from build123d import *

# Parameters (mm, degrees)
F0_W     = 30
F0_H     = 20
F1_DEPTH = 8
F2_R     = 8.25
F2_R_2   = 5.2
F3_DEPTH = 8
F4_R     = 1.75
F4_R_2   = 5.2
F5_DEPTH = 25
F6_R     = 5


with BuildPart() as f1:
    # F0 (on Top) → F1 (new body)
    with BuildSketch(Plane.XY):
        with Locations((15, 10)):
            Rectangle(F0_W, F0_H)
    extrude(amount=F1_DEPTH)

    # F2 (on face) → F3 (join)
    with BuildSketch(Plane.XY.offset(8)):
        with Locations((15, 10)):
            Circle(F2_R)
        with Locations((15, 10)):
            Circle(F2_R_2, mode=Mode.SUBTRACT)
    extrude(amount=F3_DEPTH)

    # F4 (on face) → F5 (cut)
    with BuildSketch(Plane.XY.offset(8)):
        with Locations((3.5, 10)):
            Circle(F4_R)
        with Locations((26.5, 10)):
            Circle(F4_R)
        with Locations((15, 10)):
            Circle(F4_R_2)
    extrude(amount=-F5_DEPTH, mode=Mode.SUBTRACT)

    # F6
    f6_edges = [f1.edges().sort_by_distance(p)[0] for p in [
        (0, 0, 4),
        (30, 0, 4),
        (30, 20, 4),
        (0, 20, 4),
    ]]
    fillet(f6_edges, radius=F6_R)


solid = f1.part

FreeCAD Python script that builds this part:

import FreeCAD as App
import Part
import Sketcher


def edges_at(feature, points):
    """Names of the edges that pass closest to the given points."""
    edges = feature.Shape.Edges
    near = lambda p: min(range(len(edges)), key=lambda i: edges[i].distToShape(Part.Vertex(*p))[0])
    return sorted({f"Edge{near(p) + 1}" for p in points})

doc = App.newDocument("Part")
body = doc.addObject("PartDesign::Body", "Body")

sketch1 = body.newObject("Sketcher::SketchObject", "Sketch")
sketch1.AttachmentSupport = (doc.getObject("XY_Plane"), [""])
sketch1.MapMode = "FlatFace"
sketch1.addGeometry(Part.LineSegment(App.Vector(0, 20, 0), App.Vector(0, 0, 0)), False)
sketch1.addGeometry(Part.LineSegment(App.Vector(0, 0, 0), App.Vector(30, 0, 0)), False)
sketch1.addGeometry(Part.LineSegment(App.Vector(30, 0, 0), App.Vector(30, 20, 0)), False)
sketch1.addGeometry(Part.LineSegment(App.Vector(30, 20, 0), App.Vector(0, 20, 0)), False)
sketch1.addConstraint(Sketcher.Constraint("Coincident", 0, 2, 1, 1))
sketch1.addConstraint(Sketcher.Constraint("Coincident", 1, 2, 2, 1))
sketch1.addConstraint(Sketcher.Constraint("Coincident", 2, 2, 3, 1))
sketch1.addConstraint(Sketcher.Constraint("Coincident", 3, 2, 0, 1))
sketch1.addConstraint(Sketcher.Constraint("Vertical", 0))
sketch1.addConstraint(Sketcher.Constraint("Horizontal", 1))
sketch1.addConstraint(Sketcher.Constraint("Vertical", 2))
sketch1.addConstraint(Sketcher.Constraint("Horizontal", 3))
sketch1.addConstraint(Sketcher.Constraint("Coincident", 0, 2, -1, 1))
sketch1.addConstraint(Sketcher.Constraint("DistanceX", 1, 1, 1, 2, 30.0))
sketch1.addConstraint(Sketcher.Constraint("DistanceY", 0, 2, 0, 1, 20.0))
pad1 = body.newObject("PartDesign::Pad", "Pad")
pad1.Profile = sketch1
pad1.Length = 8

sketch2 = body.newObject("Sketcher::SketchObject", "Sketch001")
sketch2.AttachmentSupport = (doc.getObject("XY_Plane"), [""])
sketch2.MapMode = "FlatFace"
sketch2.AttachmentOffset = App.Placement(App.Vector(0, 0, 8), App.Rotation())
sketch2.addGeometry(Part.Circle(App.Vector(15, 10, 0), App.Vector(0, 0, 1), 8), False)
sketch2.addGeometry(Part.Circle(App.Vector(15, 10, 0), App.Vector(0, 0, 1), 5), False)
sketch2.addConstraint(Sketcher.Constraint("Coincident", 1, 3, 0, 3))
sketch2.addConstraint(Sketcher.Constraint("Diameter", 0, 16.5))
sketch2.addConstraint(Sketcher.Constraint("Diameter", 1, 10.4))
sketch2.addConstraint(Sketcher.Constraint("DistanceX", -1, 1, 0, 3, 15.0))
sketch2.addConstraint(Sketcher.Constraint("DistanceY", -1, 1, 0, 3, 10.0))
pad2 = body.newObject("PartDesign::Pad", "Pad001")
pad2.Profile = sketch2
pad2.Length = 8

sketch3 = body.newObject("Sketcher::SketchObject", "Sketch002")
sketch3.AttachmentSupport = (doc.getObject("XY_Plane"), [""])
sketch3.MapMode = "FlatFace"
sketch3.AttachmentOffset = App.Placement(App.Vector(0, 0, 8), App.Rotation())
sketch3.addGeometry(Part.Circle(App.Vector(3.5, 10, 0), App.Vector(0, 0, 1), 1.8), False)
sketch3.addGeometry(Part.Circle(App.Vector(26.5, 10, 0), App.Vector(0, 0, 1), 1.8), False)
sketch3.addGeometry(Part.Circle(App.Vector(15, 10, 0), App.Vector(0, 0, 1), 5.2), False)
sketch3.addConstraint(Sketcher.Constraint("Equal", 0, 1))
sketch3.addConstraint(Sketcher.Constraint("Horizontal", 0, 3, 1, 3))
sketch3.addConstraint(Sketcher.Constraint("Horizontal", 1, 3, 2, 3))
sketch3.addConstraint(Sketcher.Constraint("Diameter", 0, 3.5))
sketch3.addConstraint(Sketcher.Constraint("Diameter", 2, 10.4))
sketch3.addConstraint(Sketcher.Constraint("DistanceY", -1, 1, 0, 3, 10.0))
sketch3.addConstraint(Sketcher.Constraint("DistanceX", -1, 1, 2, 3, 15.0))
sketch3.addConstraint(Sketcher.Constraint("DistanceX", 0, 3, 1, 3, 23.0))
sketch3.addConstraint(Sketcher.Constraint("DistanceX", -1, 1, 0, 3, 3.5))
pocket1 = body.newObject("PartDesign::Pocket", "Pocket")
pocket1.Profile = sketch3
pocket1.Length = 25
doc.recompute()

fillet = body.newObject("PartDesign::Fillet", "Fillet")
fillet.Base = (pocket1, edges_at(pocket1, [
    (0, 0, 4),
    (30, 0, 4),
    (30, 20, 4),
    (0, 20, 4),
]))
fillet.Radius = 5

doc.recompute()
